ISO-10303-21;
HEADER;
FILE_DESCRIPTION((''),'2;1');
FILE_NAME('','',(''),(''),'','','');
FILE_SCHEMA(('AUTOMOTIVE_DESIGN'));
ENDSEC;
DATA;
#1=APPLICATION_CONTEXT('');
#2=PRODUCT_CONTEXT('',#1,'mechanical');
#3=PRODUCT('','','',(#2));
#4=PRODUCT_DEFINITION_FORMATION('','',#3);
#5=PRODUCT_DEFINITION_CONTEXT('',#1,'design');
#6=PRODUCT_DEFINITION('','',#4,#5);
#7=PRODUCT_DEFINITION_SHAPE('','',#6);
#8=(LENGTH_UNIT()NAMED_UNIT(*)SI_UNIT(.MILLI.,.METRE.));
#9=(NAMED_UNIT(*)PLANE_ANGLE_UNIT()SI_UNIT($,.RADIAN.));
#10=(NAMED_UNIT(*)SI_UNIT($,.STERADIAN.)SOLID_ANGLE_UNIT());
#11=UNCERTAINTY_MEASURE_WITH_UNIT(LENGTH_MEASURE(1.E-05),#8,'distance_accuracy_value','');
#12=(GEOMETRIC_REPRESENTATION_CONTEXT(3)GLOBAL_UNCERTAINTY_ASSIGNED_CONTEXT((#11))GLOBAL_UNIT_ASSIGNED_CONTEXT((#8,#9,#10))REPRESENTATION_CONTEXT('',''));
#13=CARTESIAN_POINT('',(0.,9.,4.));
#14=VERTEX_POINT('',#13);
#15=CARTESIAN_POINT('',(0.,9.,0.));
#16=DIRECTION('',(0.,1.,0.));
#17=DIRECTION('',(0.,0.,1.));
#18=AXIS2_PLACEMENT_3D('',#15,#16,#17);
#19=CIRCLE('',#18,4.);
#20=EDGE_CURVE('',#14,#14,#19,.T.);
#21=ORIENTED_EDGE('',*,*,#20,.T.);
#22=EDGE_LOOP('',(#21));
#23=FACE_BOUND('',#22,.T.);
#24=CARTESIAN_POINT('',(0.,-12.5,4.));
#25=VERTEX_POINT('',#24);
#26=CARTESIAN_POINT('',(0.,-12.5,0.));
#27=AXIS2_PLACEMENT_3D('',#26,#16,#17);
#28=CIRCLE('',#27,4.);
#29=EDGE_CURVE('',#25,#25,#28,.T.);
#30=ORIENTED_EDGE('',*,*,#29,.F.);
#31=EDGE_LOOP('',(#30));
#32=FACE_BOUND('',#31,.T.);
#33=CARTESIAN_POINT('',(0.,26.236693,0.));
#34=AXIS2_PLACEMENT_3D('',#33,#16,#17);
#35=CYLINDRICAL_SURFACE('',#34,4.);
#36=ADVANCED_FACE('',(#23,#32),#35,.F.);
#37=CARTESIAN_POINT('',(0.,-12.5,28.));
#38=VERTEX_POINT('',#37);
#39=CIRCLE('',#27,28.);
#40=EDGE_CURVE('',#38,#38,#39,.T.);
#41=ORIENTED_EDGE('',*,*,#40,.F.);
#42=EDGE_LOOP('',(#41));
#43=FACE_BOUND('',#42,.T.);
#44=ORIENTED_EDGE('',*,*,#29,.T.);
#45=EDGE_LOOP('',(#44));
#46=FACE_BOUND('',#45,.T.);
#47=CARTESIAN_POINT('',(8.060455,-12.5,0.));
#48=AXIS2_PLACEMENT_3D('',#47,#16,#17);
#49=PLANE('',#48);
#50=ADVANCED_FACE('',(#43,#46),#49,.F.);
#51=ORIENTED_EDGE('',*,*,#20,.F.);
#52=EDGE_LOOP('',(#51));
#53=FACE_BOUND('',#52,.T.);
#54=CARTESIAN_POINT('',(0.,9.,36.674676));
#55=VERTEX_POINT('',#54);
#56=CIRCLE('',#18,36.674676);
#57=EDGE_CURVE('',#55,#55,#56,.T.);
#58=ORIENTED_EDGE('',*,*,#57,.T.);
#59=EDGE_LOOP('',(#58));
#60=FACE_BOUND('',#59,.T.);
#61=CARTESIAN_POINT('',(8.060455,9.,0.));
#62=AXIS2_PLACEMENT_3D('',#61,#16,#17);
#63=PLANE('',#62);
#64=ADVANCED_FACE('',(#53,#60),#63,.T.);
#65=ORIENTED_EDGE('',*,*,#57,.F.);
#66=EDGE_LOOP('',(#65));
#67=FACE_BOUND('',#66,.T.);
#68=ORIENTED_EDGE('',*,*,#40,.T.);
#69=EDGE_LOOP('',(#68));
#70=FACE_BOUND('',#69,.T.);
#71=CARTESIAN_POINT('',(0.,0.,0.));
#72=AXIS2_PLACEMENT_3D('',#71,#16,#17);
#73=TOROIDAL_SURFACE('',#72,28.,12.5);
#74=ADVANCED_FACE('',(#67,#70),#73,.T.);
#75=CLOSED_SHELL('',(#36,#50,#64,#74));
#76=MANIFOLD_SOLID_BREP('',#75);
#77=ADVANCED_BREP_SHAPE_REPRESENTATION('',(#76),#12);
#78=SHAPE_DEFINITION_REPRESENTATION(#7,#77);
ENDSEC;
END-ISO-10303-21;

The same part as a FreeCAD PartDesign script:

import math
import FreeCAD as App
import Part
import Sketcher
from FreeCAD import Vector
Q = App.Units.Quantity

doc = App.newDocument("Part")
body = doc.addObject("PartDesign::Body", "Body")

sketch1 = doc.addObject("Sketcher::SketchObject", "Sketch")
body.addObject(sketch1)
sketch1.AttachmentSupport = (doc.XY_Plane, [""])
sketch1.MapMode = "FlatFace"
sketch1.addGeometry([
    Part.LineSegment(Vector(37, 9, 0), Vector(4, 9, 0)),
    Part.LineSegment(Vector(4, 9, 0), Vector(4, -12, 0)),
    Part.LineSegment(Vector(4, -12, 0), Vector(28, -12, 0)),
    Part.ArcOfCircle(Part.Circle(Vector(28, 0, 0), Vector(0, 0, 1), 12), math.radians(-90), math.radians(46)),
], False)
sketch1.addConstraint([
    Sketcher.Constraint("Coincident", 0, 2, 1, 1),
    Sketcher.Constraint("Coincident", 1, 2, 2, 1),
    Sketcher.Constraint("Tangent", 2, 2, 3, 1),
    Sketcher.Constraint("Coincident", 3, 2, 0, 1),
    Sketcher.Constraint("Horizontal", 0),
    Sketcher.Constraint("Vertical", 1),
    Sketcher.Constraint("Horizontal", 2),
    Sketcher.Constraint("PointOnObject", 3, 3, -1),
    Sketcher.Constraint("Radius", 3, Q("12.5 mm")),
    Sketcher.Constraint("DistanceX", 2, 1, 2, 2, Q("24 mm")),
    Sketcher.Constraint("DistanceY", 1, 2, 1, 1, Q("21.5 mm")),
    Sketcher.Constraint("DistanceX", -1, 1, 3, 3, Q("28 mm")),
])
revolution = doc.addObject("PartDesign::Revolution", "Revolution")
body.addObject(revolution)
revolution.Profile = sketch1
revolution.ReferenceAxis = (sketch1, ["V_Axis"])
revolution.Angle = 360

doc.recompute()
